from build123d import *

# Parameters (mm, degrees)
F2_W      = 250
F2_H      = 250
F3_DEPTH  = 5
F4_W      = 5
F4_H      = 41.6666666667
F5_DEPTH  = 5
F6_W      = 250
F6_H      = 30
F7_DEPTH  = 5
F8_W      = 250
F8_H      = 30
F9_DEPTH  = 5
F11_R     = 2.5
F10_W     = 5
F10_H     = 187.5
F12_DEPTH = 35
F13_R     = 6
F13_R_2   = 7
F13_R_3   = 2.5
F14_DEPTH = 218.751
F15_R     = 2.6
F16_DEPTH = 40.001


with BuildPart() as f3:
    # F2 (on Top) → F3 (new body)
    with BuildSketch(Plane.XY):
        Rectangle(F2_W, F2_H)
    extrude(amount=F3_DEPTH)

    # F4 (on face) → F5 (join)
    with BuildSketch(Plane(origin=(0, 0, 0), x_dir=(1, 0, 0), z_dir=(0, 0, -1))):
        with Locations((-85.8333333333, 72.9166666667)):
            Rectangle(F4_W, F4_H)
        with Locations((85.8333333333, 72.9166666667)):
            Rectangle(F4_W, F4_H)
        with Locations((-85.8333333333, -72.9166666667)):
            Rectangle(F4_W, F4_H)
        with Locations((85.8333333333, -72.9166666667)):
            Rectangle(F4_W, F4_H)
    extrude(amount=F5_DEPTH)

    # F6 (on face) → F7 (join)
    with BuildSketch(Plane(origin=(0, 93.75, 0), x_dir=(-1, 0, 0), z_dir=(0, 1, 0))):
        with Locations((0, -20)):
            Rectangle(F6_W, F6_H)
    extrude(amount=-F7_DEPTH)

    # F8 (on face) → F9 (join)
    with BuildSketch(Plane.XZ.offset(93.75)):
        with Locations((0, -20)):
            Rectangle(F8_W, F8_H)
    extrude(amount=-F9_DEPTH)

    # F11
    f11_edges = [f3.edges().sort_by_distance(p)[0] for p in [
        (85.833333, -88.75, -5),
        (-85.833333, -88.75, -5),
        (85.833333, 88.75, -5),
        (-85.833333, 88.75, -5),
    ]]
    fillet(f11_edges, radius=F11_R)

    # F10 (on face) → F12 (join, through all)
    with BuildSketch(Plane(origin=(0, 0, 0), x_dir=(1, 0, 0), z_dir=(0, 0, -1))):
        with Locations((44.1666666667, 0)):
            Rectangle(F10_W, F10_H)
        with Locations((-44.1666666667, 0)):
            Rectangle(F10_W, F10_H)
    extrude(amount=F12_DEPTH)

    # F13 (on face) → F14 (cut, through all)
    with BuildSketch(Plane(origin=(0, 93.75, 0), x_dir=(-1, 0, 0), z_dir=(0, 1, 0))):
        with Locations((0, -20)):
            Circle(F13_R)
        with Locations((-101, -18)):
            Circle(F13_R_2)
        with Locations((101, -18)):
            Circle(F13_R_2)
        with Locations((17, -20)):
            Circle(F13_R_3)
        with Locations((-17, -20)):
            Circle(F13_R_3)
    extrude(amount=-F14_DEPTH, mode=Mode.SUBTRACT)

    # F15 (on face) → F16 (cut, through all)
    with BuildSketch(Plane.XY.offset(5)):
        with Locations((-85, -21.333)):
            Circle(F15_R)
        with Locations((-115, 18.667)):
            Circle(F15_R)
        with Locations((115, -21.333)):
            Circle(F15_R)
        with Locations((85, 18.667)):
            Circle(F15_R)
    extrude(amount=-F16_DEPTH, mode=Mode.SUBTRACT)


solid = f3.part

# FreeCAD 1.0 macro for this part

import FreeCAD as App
import Part
import Sketcher


def edges_at(feature, points):
    """Names of the edges that pass closest to the given points."""
    edges = feature.Shape.Edges
    near = lambda p: min(range(len(edges)), key=lambda i: edges[i].distToShape(Part.Vertex(*p))[0])
    return sorted({f"Edge{near(p) + 1}" for p in points})


def add_polygon(sketch, points):
    """Adds a closed chain of lines whose ends are joined by coincident constraints."""
    first, n = sketch.GeometryCount, len(points)
    for a, b in zip(points, points[1:] + points[:1]):
        sketch.addGeometry(Part.LineSegment(App.Vector(*a, 0), App.Vector(*b, 0)), False)
    for i in range(n):
        sketch.addConstraint(Sketcher.Constraint("Coincident", first + i, 2, first + (i + 1) % n, 1))

doc = App.newDocument("Part")
body = doc.addObject("PartDesign::Body", "Body")

sketch1 = body.newObject("Sketcher::SketchObject", "Sketch")
sketch1.AttachmentSupport = (doc.getObject("XY_Plane"), [""])
sketch1.MapMode = "FlatFace"
add_polygon(sketch1, [(-125, 125), (-125, -125), (125, -125), (125, 125)])
sketch1.addConstraint(Sketcher.Constraint("Vertical", 0))
sketch1.addConstraint(Sketcher.Constraint("Horizontal", 1))
sketch1.addConstraint(Sketcher.Constraint("Vertical", 2))
sketch1.addConstraint(Sketcher.Constraint("Horizontal", 3))
sketch1.addConstraint(Sketcher.Constraint("Symmetric", 0, 2, 2, 2, -1, 1))
sketch1.addConstraint(Sketcher.Constraint("Equal", 3, 0))
sketch1.addConstraint(Sketcher.Constraint("DistanceX", 1, 1, 1, 2, 250.0))
pad1 = body.newObject("PartDesign::Pad", "Pad")
pad1.Profile = sketch1
pad1.Length = 5

sketch2 = body.newObject("Sketcher::SketchObject", "Sketch001")
sketch2.AttachmentSupport = (doc.getObject("XY_Plane"), [""])
sketch2.MapMode = "FlatFace"
add_polygon(sketch2, [(-88.333333, -93.75), (-88.333333, -52.083333), (-83.333333, -52.083333), (-83.333333, -93.75)])
add_polygon(sketch2, [(83.333333, -93.75), (83.333333, -52.083333), (88.333333, -52.083333), (88.333333, -93.75)])
add_polygon(sketch2, [(-88.333333, 52.083333), (-88.333333, 93.75), (-83.333333, 93.75), (-83.333333, 52.083333)])
add_polygon(sketch2, [(83.333333, 52.083333), (83.333333, 93.75), (88.333333, 93.75), (88.333333, 52.083333)])
sketch2.addConstraint(Sketcher.Constraint("Vertical", 0))
sketch2.addConstraint(Sketcher.Constraint("Horizontal", 1))
sketch2.addConstraint(Sketcher.Constraint("Vertical", 2))
sketch2.addConstraint(Sketcher.Constraint("Horizontal", 3))
sketch2.addConstraint(Sketcher.Constraint("Vertical", 4))
sketch2.addConstraint(Sketcher.Constraint("Horizontal", 5))
sketch2.addConstraint(Sketcher.Constraint("Vertical", 6))
sketch2.addConstraint(Sketcher.Constraint("Horizontal", 7))
sketch2.addConstraint(Sketcher.Constraint("Vertical", 8))
sketch2.addConstraint(Sketcher.Constraint("Horizontal", 9))
sketch2.addConstraint(Sketcher.Constraint("Vertical", 10))
sketch2.addConstraint(Sketcher.Constraint("Horizontal", 11))
sketch2.addConstraint(Sketcher.Constraint("Vertical", 12))
sketch2.addConstraint(Sketcher.Constraint("Horizontal", 13))
sketch2.addConstraint(Sketcher.Constraint("Vertical", 14))
sketch2.addConstraint(Sketcher.Constraint("Horizontal", 15))
sketch2.addConstraint(Sketcher.Constraint("Symmetric", 6, 2, 8, 2, -1, 1))
sketch2.addConstraint(Sketcher.Constraint("Symmetric", 4, 2, 10, 2, -1, 1))
sketch2.addConstraint(Sketcher.Constraint("Symmetric", 2, 2, 12, 2, -1, 1))
sketch2.addConstraint(Sketcher.Constraint("Symmetric", 0, 2, 14, 2, -1, 1))
sketch2.addConstraint(Sketcher.Constraint("Symmetric", 1, 2, 4, 2, -2))
sketch2.addConstraint(Sketcher.Constraint("Symmetric", 3, 2, 6, 2, -2))
sketch2.addConstraint(Sketcher.Constraint("DistanceX", 1, 1, 1, 2, 5.0))
sketch2.addConstraint(Sketcher.Constraint("DistanceY", 3, 2, 8, 2, 187.5))
sketch2.addConstraint(Sketcher.Constraint("DistanceY", 0, 1, 0, 2, 41.666667))
sketch2.addConstraint(Sketcher.Constraint("DistanceX", 0, 2, -1, 1, 88.333333))
pad2 = body.newObject("PartDesign::Pad", "Pad001")
pad2.Profile = sketch2
pad2.Length = 5
pad2.Reversed = True

sketch3 = body.newObject("Sketcher::SketchObject", "Sketch002")
sketch3.AttachmentSupport = (doc.getObject("XZ_Plane"), [""])
sketch3.MapMode = "FlatFace"
sketch3.AttachmentOffset = App.Placement(App.Vector(0, 0, -93.75), App.Rotation())
add_polygon(sketch3, [(125, -5), (125, -35), (-125, -35), (-125, -5)])
sketch3.addConstraint(Sketcher.Constraint("Vertical", 0))
sketch3.addConstraint(Sketcher.Constraint("Horizontal", 1))
sketch3.addConstraint(Sketcher.Constraint("Vertical", 2))
sketch3.addConstraint(Sketcher.Constraint("Horizontal", 3))
sketch3.addConstraint(Sketcher.Constraint("DistanceX", 1, 2, 1, 1, 250.0))
sketch3.addConstraint(Sketcher.Constraint("DistanceY", 0, 2, 0, 1, 30.0))
sketch3.addConstraint(Sketcher.Constraint("DistanceX", -1, 1, 0, 2, 125.0))
sketch3.addConstraint(Sketcher.Constraint("DistanceY", 0, 2, -1, 1, 35.0))
pad3 = body.newObject("PartDesign::Pad", "Pad002")
pad3.Profile = sketch3
pad3.Length = 5

sketch4 = body.newObject("Sketcher::SketchObject", "Sketch003")
sketch4.AttachmentSupport = (doc.getObject("XZ_Plane"), [""])
sketch4.MapMode = "FlatFace"
sketch4.AttachmentOffset = App.Placement(App.Vector(0, 0, 93.75), App.Rotation())
add_polygon(sketch4, [(-125, -5), (-125, -35), (125, -35), (125, -5)])
sketch4.addConstraint(Sketcher.Constraint("Vertical", 0))
sketch4.addConstraint(Sketcher.Constraint("Horizontal", 1))
sketch4.addConstraint(Sketcher.Constraint("Vertical", 2))
sketch4.addConstraint(Sketcher.Constraint("Horizontal", 3))
sketch4.addConstraint(Sketcher.Constraint("DistanceX", 1, 1, 1, 2, 250.0))
sketch4.addConstraint(Sketcher.Constraint("DistanceY", 0, 2, 0, 1, 30.0))
sketch4.addConstraint(Sketcher.Constraint("DistanceX", 0, 2, -1, 1, 125.0))
sketch4.addConstraint(Sketcher.Constraint("DistanceY", 0, 2, -1, 1, 35.0))
pad4 = body.newObject("PartDesign::Pad", "Pad003")
pad4.Profile = sketch4
pad4.Length = 5
pad4.Reversed = True
doc.recompute()

fillet = body.newObject("PartDesign::Fillet", "Fillet")
fillet.Base = (pad4, edges_at(pad4, [
    (85.833, -88.75, -5),
    (-85.833, -88.75, -5),
    (85.833, 88.75, -5),
    (-85.833, 88.75, -5),
]))
fillet.Radius = 2.5

sketch5 = body.newObject("Sketcher::SketchObject", "Sketch004")
sketch5.AttachmentSupport = (doc.getObject("XY_Plane"), [""])
sketch5.MapMode = "FlatFace"
add_polygon(sketch5, [(41.666667, -93.75), (41.666667, 93.75), (46.666667, 93.75), (46.666667, -93.75)])
add_polygon(sketch5, [(-46.666667, -93.75), (-46.666667, 93.75), (-41.666667, 93.75), (-41.666667, -93.75)])
sketch5.addConstraint(Sketcher.Constraint("Vertical", 0))
sketch5.addConstraint(Sketcher.Constraint("Horizontal", 1))
sketch5.addConstraint(Sketcher.Constraint("Vertical", 2))
sketch5.addConstraint(Sketcher.Constraint("Horizontal", 3))
sketch5.addConstraint(Sketcher.Constraint("Vertical", 4))
sketch5.addConstraint(Sketcher.Constraint("Horizontal", 5))
sketch5.addConstraint(Sketcher.Constraint("Vertical", 6))
sketch5.addConstraint(Sketcher.Constraint("Horizontal", 7))
sketch5.addConstraint(Sketcher.Constraint("Symmetric", 2, 2, 4, 2, -1, 1))
sketch5.addConstraint(Sketcher.Constraint("Symmetric", 0, 2, 6, 2, -1, 1))
sketch5.addConstraint(Sketcher.Constraint("Horizontal", 1, 2, 4, 2))
sketch5.addConstraint(Sketcher.Constraint("DistanceX", 1, 1, 1, 2, 5.0))
sketch5.addConstraint(Sketcher.Constraint("DistanceY", 0, 1, 0, 2, 187.5))
sketch5.addConstraint(Sketcher.Constraint("DistanceX", -1, 1, 0, 2, 41.666667))
pad5 = body.newObject("PartDesign::Pad", "Pad004")
pad5.Profile = sketch5
pad5.Length = 35
pad5.Reversed = True

sketch6 = body.newObject("Sketcher::SketchObject", "Sketch005")
sketch6.AttachmentSupport = (doc.getObject("XZ_Plane"), [""])
sketch6.MapMode = "FlatFace"
sketch6.AttachmentOffset = App.Placement(App.Vector(0, 0, -93.75), App.Rotation())
sketch6.addGeometry(Part.Circle(App.Vector(0, -20, 0), App.Vector(0, 0, 1), 6), False)
sketch6.addGeometry(Part.Circle(App.Vector(101, -18, 0), App.Vector(0, 0, 1), 7), False)
sketch6.addGeometry(Part.Circle(App.Vector(-101, -18, 0), App.Vector(0, 0, 1), 7), False)
sketch6.addGeometry(Part.Circle(App.Vector(-17, -20, 0), App.Vector(0, 0, 1), 2.5), False)
sketch6.addGeometry(Part.Circle(App.Vector(17, -20, 0), App.Vector(0, 0, 1), 2.5), False)
sketch6.addConstraint(Sketcher.Constraint("Equal", 1, 2))
sketch6.addConstraint(Sketcher.Constraint("Equal", 3, 4))
sketch6.addConstraint(Sketcher.Constraint("Symmetric", 1, 3, 2, 3, -2))
sketch6.addConstraint(Sketcher.Constraint("Symmetric", 3, 3, 4, 3, -2))
sketch6.addConstraint(Sketcher.Constraint("PointOnObject", 0, 3, -2))
sketch6.addConstraint(Sketcher.Constraint("Horizontal", 0, 3, 3, 3))
sketch6.addConstraint(Sketcher.Constraint("Diameter", 0, 12.0))
sketch6.addConstraint(Sketcher.Constraint("Diameter", 1, 14.0))
sketch6.addConstraint(Sketcher.Constraint("Diameter", 3, 5.0))
sketch6.addConstraint(Sketcher.Constraint("DistanceY", 0, 3, -1, 1, 20.0))
sketch6.addConstraint(Sketcher.Constraint("DistanceX", -1, 1, 1, 3, 101.0))
sketch6.addConstraint(Sketcher.Constraint("DistanceY", 1, 3, -1, 1, 18.0))
sketch6.addConstraint(Sketcher.Constraint("DistanceX", 3, 3, -1, 1, 17.0))
pocket1 = body.newObject("PartDesign::Pocket", "Pocket")
pocket1.Profile = sketch6
pocket1.Type = "ThroughAll"
pocket1.Reversed = True

sketch7 = body.newObject("Sketcher::SketchObject", "Sketch006")
sketch7.AttachmentSupport = (doc.getObject("XY_Plane"), [""])
sketch7.MapMode = "FlatFace"
sketch7.AttachmentOffset = App.Placement(App.Vector(0, 0, 5), App.Rotation())
sketch7.addGeometry(Part.Circle(App.Vector(-85, -21.333, 0), App.Vector(0, 0, 1), 2.6), False)
sketch7.addGeometry(Part.Circle(App.Vector(-115, 18.667, 0), App.Vector(0, 0, 1), 2.6), False)
sketch7.addGeometry(Part.Circle(App.Vector(115, -21.333, 0), App.Vector(0, 0, 1), 2.6), False)
sketch7.addGeometry(Part.Circle(App.Vector(85, 18.667, 0), App.Vector(0, 0, 1), 2.6), False)
sketch7.addConstraint(Sketcher.Constraint("Equal", 0, 1))
sketch7.addConstraint(Sketcher.Constraint("Equal", 1, 2))
sketch7.addConstraint(Sketcher.Constraint("Equal", 2, 3))
sketch7.addConstraint(Sketcher.Constraint("Horizontal", 0, 3, 2, 3))
sketch7.addConstraint(Sketcher.Constraint("Horizontal", 1, 3, 3, 3))
sketch7.addConstraint(Sketcher.Constraint("Diameter", 0, 5.2))
sketch7.addConstraint(Sketcher.Constraint("DistanceX", 0, 3, -1, 1, 85.0))
sketch7.addConstraint(Sketcher.Constraint("DistanceX", 1, 3, -1, 1, 115.0))
sketch7.addConstraint(Sketcher.Constraint("DistanceX", -1, 1, 2, 3, 115.0))
sketch7.addConstraint(Sketcher.Constraint("DistanceX", -1, 1, 3, 3, 85.0))
sketch7.addConstraint(Sketcher.Constraint("DistanceY", 0, 3, 1, 3, 40.0))
sketch7.addConstraint(Sketcher.Constraint("DistanceY", 0, 3, -1, 1, 21.333))
pocket2 = body.newObject("PartDesign::Pocket", "Pocket001")
pocket2.Profile = sketch7
pocket2.Type = "ThroughAll"

doc.recompute()
